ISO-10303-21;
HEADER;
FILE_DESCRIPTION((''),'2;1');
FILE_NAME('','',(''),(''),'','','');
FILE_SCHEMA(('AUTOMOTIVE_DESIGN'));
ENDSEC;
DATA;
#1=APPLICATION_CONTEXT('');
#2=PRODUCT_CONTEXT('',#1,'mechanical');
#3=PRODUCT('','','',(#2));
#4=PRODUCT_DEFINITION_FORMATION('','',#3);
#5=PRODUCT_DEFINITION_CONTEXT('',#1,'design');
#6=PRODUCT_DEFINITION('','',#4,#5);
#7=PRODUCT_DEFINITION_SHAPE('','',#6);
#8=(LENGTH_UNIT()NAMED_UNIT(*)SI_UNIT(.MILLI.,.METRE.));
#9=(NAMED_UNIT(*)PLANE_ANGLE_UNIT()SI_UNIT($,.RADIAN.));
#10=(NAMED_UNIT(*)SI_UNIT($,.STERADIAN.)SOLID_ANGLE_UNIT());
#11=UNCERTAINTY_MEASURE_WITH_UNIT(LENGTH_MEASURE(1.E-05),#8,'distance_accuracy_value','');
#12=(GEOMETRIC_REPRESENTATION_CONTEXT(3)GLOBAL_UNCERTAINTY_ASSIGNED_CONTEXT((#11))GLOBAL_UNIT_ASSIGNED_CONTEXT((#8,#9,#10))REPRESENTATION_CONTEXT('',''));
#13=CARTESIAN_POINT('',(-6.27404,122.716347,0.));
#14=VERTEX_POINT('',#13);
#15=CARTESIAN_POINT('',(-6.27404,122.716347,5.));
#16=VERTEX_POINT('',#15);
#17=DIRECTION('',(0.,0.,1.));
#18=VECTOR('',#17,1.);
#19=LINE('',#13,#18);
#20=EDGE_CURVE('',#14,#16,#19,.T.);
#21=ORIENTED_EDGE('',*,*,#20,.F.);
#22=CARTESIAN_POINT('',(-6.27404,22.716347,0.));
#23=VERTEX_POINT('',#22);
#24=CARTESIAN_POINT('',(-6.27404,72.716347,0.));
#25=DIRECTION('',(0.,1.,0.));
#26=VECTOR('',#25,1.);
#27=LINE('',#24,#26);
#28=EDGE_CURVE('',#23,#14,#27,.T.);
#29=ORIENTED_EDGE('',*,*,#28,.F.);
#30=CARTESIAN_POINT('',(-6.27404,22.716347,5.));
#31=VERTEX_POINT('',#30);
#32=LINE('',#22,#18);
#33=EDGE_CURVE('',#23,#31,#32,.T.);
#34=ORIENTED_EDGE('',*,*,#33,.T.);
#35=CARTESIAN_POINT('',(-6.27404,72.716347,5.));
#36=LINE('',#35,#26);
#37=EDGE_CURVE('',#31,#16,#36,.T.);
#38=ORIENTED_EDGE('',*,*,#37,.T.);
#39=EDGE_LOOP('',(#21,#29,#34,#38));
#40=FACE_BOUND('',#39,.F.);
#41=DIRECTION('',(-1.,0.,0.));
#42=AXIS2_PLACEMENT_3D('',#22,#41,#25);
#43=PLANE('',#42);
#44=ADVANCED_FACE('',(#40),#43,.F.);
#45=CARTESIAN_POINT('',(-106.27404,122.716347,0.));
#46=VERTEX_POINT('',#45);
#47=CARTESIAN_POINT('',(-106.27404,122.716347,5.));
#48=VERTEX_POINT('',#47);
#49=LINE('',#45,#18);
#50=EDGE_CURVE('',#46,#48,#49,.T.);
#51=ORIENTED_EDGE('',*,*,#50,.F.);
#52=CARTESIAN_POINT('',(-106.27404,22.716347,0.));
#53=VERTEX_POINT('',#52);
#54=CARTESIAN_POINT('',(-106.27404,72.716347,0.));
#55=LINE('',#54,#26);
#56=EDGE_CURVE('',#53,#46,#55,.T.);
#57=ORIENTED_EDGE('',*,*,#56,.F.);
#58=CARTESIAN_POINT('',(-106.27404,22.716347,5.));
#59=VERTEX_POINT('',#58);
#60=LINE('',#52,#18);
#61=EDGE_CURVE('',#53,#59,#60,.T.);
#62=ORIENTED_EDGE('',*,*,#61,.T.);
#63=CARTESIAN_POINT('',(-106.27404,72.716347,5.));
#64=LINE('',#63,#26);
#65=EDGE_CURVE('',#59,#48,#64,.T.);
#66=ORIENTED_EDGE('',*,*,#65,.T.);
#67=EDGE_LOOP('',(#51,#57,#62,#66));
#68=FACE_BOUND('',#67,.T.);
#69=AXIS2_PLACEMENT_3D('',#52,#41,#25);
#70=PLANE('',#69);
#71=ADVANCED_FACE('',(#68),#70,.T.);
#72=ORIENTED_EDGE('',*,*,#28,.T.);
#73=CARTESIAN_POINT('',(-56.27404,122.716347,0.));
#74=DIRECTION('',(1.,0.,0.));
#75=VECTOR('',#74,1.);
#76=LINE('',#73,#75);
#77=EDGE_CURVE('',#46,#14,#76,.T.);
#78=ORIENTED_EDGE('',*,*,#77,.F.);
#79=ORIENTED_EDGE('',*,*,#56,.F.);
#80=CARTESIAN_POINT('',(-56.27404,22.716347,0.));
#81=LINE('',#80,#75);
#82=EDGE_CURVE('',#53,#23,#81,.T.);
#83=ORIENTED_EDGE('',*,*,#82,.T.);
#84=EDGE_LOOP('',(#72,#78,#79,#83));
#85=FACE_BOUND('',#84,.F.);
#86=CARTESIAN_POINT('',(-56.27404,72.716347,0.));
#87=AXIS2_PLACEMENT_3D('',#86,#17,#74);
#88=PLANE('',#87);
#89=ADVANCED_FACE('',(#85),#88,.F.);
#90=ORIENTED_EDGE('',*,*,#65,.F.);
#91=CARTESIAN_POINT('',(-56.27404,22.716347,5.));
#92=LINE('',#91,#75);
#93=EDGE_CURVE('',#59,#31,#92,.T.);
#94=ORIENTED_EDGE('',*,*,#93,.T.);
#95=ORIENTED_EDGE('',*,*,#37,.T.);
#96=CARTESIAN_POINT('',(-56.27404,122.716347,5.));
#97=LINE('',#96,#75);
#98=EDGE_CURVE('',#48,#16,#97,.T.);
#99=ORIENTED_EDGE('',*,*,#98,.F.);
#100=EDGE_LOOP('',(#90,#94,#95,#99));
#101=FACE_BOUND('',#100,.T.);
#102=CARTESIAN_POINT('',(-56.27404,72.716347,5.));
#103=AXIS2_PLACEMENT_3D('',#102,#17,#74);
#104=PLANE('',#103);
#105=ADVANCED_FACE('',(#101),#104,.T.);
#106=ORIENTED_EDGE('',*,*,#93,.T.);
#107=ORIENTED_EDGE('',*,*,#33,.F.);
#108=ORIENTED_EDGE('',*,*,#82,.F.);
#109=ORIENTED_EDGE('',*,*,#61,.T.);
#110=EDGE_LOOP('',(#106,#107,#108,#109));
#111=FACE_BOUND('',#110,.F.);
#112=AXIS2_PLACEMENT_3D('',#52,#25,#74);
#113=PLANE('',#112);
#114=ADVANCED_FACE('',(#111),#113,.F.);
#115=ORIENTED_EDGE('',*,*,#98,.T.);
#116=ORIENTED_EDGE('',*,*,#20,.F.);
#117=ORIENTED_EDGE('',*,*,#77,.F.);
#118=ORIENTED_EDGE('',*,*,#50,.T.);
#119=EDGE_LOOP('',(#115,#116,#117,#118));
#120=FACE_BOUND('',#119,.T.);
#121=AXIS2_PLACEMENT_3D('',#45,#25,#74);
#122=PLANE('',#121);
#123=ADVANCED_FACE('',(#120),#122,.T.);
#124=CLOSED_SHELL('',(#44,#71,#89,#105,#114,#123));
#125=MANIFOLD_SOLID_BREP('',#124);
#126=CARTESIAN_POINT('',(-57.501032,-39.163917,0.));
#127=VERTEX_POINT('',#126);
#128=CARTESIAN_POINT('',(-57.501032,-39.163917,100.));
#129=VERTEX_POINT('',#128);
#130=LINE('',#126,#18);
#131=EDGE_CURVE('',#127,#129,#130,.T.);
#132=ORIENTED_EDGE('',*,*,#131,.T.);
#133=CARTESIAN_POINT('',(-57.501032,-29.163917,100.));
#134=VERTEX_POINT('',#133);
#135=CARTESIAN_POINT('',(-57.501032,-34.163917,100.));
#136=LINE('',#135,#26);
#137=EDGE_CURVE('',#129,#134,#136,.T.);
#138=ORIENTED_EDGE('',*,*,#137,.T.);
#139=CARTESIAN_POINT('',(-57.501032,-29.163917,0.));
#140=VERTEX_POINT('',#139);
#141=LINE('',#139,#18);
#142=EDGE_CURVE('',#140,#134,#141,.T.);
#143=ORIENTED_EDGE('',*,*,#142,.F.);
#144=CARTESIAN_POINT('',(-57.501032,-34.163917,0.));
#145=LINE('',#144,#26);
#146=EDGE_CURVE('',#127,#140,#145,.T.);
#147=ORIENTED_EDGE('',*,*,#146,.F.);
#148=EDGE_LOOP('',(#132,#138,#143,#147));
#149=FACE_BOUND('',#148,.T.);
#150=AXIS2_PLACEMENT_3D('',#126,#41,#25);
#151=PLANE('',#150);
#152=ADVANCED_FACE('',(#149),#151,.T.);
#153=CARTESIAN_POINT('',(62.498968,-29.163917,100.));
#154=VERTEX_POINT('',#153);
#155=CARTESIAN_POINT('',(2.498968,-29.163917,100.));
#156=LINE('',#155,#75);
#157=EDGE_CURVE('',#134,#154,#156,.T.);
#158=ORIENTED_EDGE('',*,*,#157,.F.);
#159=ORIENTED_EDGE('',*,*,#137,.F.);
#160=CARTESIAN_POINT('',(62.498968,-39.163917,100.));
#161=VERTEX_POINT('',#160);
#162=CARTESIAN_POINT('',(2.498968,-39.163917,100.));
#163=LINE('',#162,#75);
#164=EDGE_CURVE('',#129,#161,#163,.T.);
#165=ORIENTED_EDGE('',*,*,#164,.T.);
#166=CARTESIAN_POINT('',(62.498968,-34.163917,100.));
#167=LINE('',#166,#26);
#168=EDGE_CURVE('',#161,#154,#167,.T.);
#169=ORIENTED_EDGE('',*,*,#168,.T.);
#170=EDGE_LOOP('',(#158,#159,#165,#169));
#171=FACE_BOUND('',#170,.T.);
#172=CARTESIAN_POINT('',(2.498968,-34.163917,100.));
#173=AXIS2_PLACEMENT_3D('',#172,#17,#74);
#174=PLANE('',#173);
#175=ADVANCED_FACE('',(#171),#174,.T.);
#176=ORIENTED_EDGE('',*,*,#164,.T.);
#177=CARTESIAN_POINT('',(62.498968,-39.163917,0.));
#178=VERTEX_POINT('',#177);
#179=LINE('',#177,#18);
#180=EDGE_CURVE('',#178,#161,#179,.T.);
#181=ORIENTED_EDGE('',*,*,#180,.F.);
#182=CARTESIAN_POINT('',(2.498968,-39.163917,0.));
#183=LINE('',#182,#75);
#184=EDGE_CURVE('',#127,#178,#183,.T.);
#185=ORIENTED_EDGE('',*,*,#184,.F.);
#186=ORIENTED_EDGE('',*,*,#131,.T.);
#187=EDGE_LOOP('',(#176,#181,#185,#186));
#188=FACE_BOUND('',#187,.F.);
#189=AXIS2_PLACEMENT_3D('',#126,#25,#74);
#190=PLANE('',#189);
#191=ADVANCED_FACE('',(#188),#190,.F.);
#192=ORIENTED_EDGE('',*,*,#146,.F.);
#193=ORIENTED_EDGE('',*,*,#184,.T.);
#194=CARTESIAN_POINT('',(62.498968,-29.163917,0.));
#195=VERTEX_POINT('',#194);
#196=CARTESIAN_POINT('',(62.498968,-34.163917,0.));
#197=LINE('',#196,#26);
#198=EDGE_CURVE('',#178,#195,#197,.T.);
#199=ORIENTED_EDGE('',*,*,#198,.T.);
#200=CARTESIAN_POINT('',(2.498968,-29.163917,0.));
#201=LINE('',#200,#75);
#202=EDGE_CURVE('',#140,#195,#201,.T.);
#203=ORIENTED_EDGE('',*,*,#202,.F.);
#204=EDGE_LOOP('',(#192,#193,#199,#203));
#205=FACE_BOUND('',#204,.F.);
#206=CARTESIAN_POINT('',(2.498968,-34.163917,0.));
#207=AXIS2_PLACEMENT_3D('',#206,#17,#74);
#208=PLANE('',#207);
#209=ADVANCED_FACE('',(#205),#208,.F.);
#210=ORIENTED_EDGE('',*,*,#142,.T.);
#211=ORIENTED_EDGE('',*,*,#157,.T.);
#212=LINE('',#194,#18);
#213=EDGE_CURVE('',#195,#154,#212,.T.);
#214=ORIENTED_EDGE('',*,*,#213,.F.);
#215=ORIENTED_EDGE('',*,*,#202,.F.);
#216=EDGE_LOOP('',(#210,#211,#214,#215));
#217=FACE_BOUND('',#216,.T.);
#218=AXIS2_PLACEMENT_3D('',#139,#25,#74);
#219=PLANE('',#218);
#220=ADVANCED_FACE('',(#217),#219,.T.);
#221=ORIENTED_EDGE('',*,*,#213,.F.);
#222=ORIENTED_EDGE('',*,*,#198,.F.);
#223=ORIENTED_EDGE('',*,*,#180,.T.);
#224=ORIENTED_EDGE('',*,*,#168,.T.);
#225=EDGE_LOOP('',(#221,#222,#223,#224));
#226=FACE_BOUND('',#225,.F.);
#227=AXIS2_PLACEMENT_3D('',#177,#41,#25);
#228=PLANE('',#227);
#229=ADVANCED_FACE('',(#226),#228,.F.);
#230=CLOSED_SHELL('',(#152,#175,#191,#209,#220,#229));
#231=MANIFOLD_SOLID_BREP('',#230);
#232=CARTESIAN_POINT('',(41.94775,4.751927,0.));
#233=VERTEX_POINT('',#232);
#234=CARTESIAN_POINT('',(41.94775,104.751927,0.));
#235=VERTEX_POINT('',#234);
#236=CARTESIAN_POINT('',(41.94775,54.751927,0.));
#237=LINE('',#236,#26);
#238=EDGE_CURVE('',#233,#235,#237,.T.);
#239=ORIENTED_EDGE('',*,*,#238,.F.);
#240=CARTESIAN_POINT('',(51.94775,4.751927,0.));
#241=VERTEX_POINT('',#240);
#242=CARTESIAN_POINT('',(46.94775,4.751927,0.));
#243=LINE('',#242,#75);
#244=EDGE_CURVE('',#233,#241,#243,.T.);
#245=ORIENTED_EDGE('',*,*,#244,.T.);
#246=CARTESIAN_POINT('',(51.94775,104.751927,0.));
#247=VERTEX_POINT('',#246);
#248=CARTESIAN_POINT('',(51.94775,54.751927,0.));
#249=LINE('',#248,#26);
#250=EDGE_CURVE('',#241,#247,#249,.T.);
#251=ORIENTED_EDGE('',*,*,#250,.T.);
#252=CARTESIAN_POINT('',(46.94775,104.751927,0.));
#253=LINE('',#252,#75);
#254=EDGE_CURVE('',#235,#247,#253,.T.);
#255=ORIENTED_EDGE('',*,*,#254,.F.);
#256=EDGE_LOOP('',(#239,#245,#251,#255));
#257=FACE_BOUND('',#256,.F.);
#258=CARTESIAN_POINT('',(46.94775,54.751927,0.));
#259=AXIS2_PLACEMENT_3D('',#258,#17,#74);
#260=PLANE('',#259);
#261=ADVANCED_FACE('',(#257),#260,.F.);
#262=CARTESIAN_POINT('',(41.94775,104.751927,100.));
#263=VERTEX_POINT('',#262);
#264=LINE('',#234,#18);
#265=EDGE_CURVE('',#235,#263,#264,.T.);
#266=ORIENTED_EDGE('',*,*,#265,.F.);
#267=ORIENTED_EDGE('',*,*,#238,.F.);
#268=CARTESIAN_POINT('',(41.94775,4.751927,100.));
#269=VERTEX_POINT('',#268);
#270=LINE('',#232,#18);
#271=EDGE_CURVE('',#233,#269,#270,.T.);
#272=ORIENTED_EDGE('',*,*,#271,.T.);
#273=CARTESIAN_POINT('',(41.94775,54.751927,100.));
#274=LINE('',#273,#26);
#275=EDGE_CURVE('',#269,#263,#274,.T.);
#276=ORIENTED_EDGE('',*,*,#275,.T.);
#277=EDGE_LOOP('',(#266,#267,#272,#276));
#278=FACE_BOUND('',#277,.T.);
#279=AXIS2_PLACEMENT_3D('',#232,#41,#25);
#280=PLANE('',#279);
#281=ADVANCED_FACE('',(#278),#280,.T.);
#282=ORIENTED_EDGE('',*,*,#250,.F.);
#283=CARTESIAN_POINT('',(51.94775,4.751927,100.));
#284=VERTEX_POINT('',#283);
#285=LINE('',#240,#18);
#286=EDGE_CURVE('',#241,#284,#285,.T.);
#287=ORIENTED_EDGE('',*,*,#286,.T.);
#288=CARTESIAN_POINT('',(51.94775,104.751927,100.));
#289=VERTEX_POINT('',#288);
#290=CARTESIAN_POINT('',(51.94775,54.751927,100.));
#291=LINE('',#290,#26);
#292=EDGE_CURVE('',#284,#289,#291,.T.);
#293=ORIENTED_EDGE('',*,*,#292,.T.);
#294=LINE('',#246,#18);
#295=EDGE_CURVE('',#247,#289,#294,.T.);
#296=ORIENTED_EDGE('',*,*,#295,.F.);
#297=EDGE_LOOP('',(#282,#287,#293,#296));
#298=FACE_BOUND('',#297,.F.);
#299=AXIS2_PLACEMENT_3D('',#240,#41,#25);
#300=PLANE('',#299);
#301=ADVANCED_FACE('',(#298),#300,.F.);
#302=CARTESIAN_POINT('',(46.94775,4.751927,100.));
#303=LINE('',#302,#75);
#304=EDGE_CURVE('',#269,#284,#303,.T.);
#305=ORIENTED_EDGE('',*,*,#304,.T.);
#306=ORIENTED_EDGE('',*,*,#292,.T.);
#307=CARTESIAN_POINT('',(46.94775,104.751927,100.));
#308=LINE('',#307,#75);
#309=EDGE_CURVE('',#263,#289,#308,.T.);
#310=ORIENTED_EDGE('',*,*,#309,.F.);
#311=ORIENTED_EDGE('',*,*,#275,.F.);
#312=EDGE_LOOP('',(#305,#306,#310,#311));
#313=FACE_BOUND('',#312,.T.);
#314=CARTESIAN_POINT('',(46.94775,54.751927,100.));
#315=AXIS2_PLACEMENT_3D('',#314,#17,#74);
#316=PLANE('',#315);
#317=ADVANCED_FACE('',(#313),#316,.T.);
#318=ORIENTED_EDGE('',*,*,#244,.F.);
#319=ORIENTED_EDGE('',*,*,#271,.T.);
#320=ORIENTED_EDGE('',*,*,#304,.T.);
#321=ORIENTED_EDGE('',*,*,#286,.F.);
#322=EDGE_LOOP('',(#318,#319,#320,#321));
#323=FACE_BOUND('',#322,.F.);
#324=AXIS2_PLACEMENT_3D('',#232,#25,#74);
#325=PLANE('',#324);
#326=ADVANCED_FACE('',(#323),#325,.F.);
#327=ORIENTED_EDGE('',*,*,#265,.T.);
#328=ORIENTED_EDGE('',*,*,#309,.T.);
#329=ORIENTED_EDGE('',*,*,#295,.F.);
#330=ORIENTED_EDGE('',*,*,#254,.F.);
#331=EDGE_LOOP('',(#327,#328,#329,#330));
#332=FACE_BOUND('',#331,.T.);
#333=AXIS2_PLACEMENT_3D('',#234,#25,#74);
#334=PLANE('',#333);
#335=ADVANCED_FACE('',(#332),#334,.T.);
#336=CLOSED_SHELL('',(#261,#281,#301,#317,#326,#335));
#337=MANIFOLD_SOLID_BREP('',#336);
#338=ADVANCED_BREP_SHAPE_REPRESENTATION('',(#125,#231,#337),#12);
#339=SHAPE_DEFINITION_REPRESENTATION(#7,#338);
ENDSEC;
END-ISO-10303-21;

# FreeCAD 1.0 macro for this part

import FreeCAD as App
import Part
import Sketcher

V = App.Vector

doc = App.newDocument("Part")
params = doc.addObject("Spreadsheet::Sheet", "Params")
for row, (alias, value) in enumerate([
    ("sketch1_width", "100 mm"),
    ("pad1_length", "5 mm"),
    ("sketch2_width", "120 mm"),
    ("sketch2_height", "10 mm"),
    ("pad2_length", "100 mm"),
    ("sketch3_width", "10 mm"),
    ("sketch3_height", "100 mm"),
    ("pad3_length", "100 mm"),
], start=1):
    params.set(f"A{row}", alias)
    params.set(f"B{row}", "=" + value)
    params.setAlias(f"B{row}", alias)

body = doc.addObject("PartDesign::Body", "Body")

sketch1 = body.newObject("Sketcher::SketchObject", "Sketch")
sketch1.AttachmentSupport = (doc.getObject("XY_Plane"), [""])
sketch1.MapMode = "FlatFace"
sketch1.addGeometry([
    Part.LineSegment(V(-106, 123, 0), V(-106, 23, 0)),
    Part.LineSegment(V(-106, 23, 0), V(-6, 23, 0)),
    Part.LineSegment(V(-6, 23, 0), V(-6, 123, 0)),
    Part.LineSegment(V(-6, 123, 0), V(-106, 123, 0)),
], False)
sketch1.addConstraint([
    Sketcher.Constraint("Coincident", 0, 2, 1, 1),
    Sketcher.Constraint("Coincident", 1, 2, 2, 1),
    Sketcher.Constraint("Coincident", 2, 2, 3, 1),
    Sketcher.Constraint("Coincident", 3, 2, 0, 1),
    Sketcher.Constraint("Vertical", 0),
    Sketcher.Constraint("Horizontal", 1),
    Sketcher.Constraint("Vertical", 2),
    Sketcher.Constraint("Horizontal", 3),
    Sketcher.Constraint("Equal", 3, 0),
    Sketcher.Constraint("DistanceX", 1, 1, 1, 2, 100.0),
    Sketcher.Constraint("DistanceX", 0, 2, -1, 1, 106.27404),
    Sketcher.Constraint("DistanceY", -1, 1, 0, 2, 22.716347),
])
sketch1.setExpression("Constraints[9]", "Params.sketch1_width")
pad1 = body.newObject("PartDesign::Pad", "Pad")
pad1.Profile = sketch1
pad1.setExpression("Length", "Params.pad1_length")
body2 = doc.addObject("PartDesign::Body", "Body001")

sketch2 = body2.newObject("Sketcher::SketchObject", "Sketch001")
sketch2.AttachmentSupport = (doc.getObject("XY_Plane001"), [""])
sketch2.MapMode = "FlatFace"
sketch2.addGeometry([
    Part.LineSegment(V(-58, -29, 0), V(-58, -39, 0)),
    Part.LineSegment(V(-58, -39, 0), V(62, -39, 0)),
    Part.LineSegment(V(62, -39, 0), V(62, -29, 0)),
    Part.LineSegment(V(62, -29, 0), V(-58, -29, 0)),
], False)
sketch2.addConstraint([
    Sketcher.Constraint("Coincident", 0, 2, 1, 1),
    Sketcher.Constraint("Coincident", 1, 2, 2, 1),
    Sketcher.Constraint("Coincident", 2, 2, 3, 1),
    Sketcher.Constraint("Coincident", 3, 2, 0, 1),
    Sketcher.Constraint("Vertical", 0),
    Sketcher.Constraint("Horizontal", 1),
    Sketcher.Constraint("Vertical", 2),
    Sketcher.Constraint("Horizontal", 3),
    Sketcher.Constraint("DistanceX", 1, 1, 1, 2, 120.0),
    Sketcher.Constraint("DistanceY", 0, 2, 0, 1, 10.0),
    Sketcher.Constraint("DistanceX", 0, 2, -1, 1, 57.501032),
    Sketcher.Constraint("DistanceY", 0, 2, -1, 1, 39.163917),
])
sketch2.setExpression("Constraints[8]", "Params.sketch2_width")
sketch2.setExpression("Constraints[9]", "Params.sketch2_height")
pad2 = body2.newObject("PartDesign::Pad", "Pad001")
pad2.Profile = sketch2
pad2.setExpression("Length", "Params.pad2_length")
body3 = doc.addObject("PartDesign::Body", "Body002")

sketch3 = body3.newObject("Sketcher::SketchObject", "Sketch002")
sketch3.AttachmentSupport = (doc.getObject("XY_Plane002"), [""])
sketch3.MapMode = "FlatFace"
sketch3.addGeometry([
    Part.LineSegment(V(42, 105, 0), V(42, 5, 0)),
    Part.LineSegment(V(42, 5, 0), V(52, 5, 0)),
    Part.LineSegment(V(52, 5, 0), V(52, 105, 0)),
    Part.LineSegment(V(52, 105, 0), V(42, 105, 0)),
], False)
sketch3.addConstraint([
    Sketcher.Constraint("Coincident", 0, 2, 1, 1),
    Sketcher.Constraint("Coincident", 1, 2, 2, 1),
    Sketcher.Constraint("Coincident", 2, 2, 3, 1),
    Sketcher.Constraint("Coincident", 3, 2, 0, 1),
    Sketcher.Constraint("Vertical", 0),
    Sketcher.Constraint("Horizontal", 1),
    Sketcher.Constraint("Vertical", 2),
    Sketcher.Constraint("Horizontal", 3),
    Sketcher.Constraint("DistanceX", 1, 1, 1, 2, 10.0),
    Sketcher.Constraint("DistanceY", 0, 2, 0, 1, 100.0),
    Sketcher.Constraint("DistanceX", -1, 1, 0, 2, 41.94775),
    Sketcher.Constraint("DistanceY", -1, 1, 0, 2, 4.751927),
])
sketch3.setExpression("Constraints[8]", "Params.sketch3_width")
sketch3.setExpression("Constraints[9]", "Params.sketch3_height")
pad3 = body3.newObject("PartDesign::Pad", "Pad002")
pad3.Profile = sketch3
pad3.setExpression("Length", "Params.pad3_length")

doc.recompute()
